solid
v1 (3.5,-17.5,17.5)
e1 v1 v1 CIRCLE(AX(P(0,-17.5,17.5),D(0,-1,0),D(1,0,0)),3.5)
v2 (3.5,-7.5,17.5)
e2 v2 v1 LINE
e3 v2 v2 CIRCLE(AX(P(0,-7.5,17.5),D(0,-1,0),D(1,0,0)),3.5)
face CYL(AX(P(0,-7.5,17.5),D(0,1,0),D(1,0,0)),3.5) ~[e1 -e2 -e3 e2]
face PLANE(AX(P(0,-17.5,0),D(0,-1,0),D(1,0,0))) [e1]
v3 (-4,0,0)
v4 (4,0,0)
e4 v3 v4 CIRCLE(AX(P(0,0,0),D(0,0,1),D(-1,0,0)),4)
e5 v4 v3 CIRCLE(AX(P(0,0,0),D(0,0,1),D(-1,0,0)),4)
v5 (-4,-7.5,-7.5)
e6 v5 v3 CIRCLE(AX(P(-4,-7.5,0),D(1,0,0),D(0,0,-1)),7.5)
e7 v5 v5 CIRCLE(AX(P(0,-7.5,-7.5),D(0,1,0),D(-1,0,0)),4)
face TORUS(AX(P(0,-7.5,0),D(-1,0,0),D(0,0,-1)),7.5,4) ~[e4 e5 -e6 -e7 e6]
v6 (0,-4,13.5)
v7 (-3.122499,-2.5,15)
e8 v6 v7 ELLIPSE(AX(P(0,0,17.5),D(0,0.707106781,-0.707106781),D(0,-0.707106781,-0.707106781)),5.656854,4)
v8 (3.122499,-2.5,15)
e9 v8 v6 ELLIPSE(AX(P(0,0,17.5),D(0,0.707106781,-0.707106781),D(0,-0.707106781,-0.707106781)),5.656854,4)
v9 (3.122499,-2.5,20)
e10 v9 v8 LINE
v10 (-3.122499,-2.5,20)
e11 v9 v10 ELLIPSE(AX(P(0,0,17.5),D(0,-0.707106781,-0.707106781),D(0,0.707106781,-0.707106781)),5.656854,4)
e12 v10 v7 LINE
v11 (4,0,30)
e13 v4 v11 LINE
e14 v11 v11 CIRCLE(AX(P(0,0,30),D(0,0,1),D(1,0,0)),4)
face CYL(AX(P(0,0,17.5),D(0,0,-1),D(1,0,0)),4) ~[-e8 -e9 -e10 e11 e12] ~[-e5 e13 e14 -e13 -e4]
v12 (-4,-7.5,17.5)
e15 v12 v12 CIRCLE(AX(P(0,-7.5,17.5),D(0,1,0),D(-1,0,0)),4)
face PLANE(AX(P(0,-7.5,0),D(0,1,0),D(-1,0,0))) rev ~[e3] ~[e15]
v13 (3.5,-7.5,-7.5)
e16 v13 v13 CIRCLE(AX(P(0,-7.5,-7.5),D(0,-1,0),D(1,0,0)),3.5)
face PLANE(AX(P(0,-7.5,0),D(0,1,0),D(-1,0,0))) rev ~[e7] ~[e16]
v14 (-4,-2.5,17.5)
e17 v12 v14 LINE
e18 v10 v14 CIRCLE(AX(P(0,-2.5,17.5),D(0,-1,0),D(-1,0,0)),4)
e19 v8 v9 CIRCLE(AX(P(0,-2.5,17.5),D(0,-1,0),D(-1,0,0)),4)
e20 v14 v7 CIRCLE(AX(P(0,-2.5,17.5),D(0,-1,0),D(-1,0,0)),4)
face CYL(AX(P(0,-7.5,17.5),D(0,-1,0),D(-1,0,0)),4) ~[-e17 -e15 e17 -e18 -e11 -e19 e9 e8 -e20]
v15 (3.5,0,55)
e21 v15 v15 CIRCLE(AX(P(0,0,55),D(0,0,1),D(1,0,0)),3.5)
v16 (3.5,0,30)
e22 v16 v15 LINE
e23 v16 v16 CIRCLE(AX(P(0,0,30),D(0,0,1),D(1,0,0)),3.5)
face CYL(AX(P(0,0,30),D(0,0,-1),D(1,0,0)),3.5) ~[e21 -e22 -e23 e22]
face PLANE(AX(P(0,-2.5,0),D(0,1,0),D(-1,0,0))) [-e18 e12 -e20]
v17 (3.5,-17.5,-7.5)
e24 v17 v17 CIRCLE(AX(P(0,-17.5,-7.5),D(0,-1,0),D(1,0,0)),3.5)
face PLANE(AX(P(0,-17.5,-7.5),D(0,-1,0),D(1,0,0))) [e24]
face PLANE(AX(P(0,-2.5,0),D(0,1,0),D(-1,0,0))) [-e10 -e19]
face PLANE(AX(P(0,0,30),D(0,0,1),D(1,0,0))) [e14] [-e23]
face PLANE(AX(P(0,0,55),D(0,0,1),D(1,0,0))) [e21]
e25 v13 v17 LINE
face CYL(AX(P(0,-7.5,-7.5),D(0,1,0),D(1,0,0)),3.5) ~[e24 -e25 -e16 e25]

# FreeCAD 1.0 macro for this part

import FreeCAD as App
import Part
import Sketcher
from FreeCAD import Vector

doc = App.newDocument("Part")
body = doc.addObject("PartDesign::Body", "Body")

# Sketch on XZ plane
sketch1 = doc.addObject("Sketcher::SketchObject", "Sketch")
body.addObject(sketch1)
sketch1.AttachmentSupport = (doc.XZ_Plane, [""])
sketch1.MapMode = "FlatFace"
sketch1.AttachmentOffset = App.Placement(Vector(0, 0, 7.5), App.Rotation())
sketch1.addGeometry(Part.Circle(Vector(0, -7.5, 0), Vector(0, 0, 1), 4), False)
sketch1.addConstraint([
    Sketcher.Constraint("PointOnObject", 0, 3, -2),
    Sketcher.Constraint("Diameter", 0, 8.0),
    Sketcher.Constraint("DistanceY", 0, 3, -1, 1, 7.5),
])
revolution = doc.addObject("PartDesign::Revolution", "Revolution")
body.addObject(revolution)
revolution.Profile = sketch1
revolution.ReferenceAxis = (sketch1, ["H_Axis"])
revolution.Angle = 90

# Sketch on XY plane
sketch2 = doc.addObject("Sketcher::SketchObject", "Sketch001")
body.addObject(sketch2)
sketch2.AttachmentSupport = (doc.XY_Plane, [""])
sketch2.MapMode = "FlatFace"
sketch2.addGeometry(Part.Circle(Vector(0, 0, 0), Vector(0, 0, 1), 4), False)
sketch2.addConstraint([
    Sketcher.Constraint("Coincident", 0, 3, -1, 1),
    Sketcher.Constraint("Diameter", 0, 8.0),
])
pad1 = doc.addObject("PartDesign::Pad", "Pad")
body.addObject(pad1)
pad1.Profile = sketch2
pad1.Length = 17.5

# Sketch on XY plane
sketch3 = doc.addObject("Sketcher::SketchObject", "Sketch002")
body.addObject(sketch3)
sketch3.AttachmentSupport = (doc.XY_Plane, [""])
sketch3.MapMode = "FlatFace"
sketch3.AttachmentOffset = App.Placement(Vector(0, 0, 17.5), App.Rotation())
sketch3.addGeometry(Part.Circle(Vector(0, 0, 0), Vector(0, 0, 1), 4), False)
sketch3.addConstraint([
    Sketcher.Constraint("Coincident", 0, 3, -1, 1),
    Sketcher.Constraint("Diameter", 0, 8.0),
])
pad2 = doc.addObject("PartDesign::Pad", "Pad001")
body.addObject(pad2)
pad2.Profile = sketch3
pad2.Length = 12.5

# Sketch on XZ plane
sketch4 = doc.addObject("Sketcher::SketchObject", "Sketch003")
body.addObject(sketch4)
sketch4.AttachmentSupport = (doc.XZ_Plane, [""])
sketch4.MapMode = "FlatFace"
sketch4.AttachmentOffset = App.Placement(Vector(0, 0, 7.5), App.Rotation())
sketch4.addGeometry(Part.Circle(Vector(0, 17.5, 0), Vector(0, 0, 1), 4), False)
sketch4.addConstraint([
    Sketcher.Constraint("PointOnObject", 0, 3, -2),
    Sketcher.Constraint("Diameter", 0, 8.0),
    Sketcher.Constraint("DistanceY", -1, 1, 0, 3, 17.5),
])
pad3 = doc.addObject("PartDesign::Pad", "Pad002")
body.addObject(pad3)
pad3.Profile = sketch4
pad3.Length = 5
pad3.Reversed = True

# Sketch on XZ plane
sketch5 = doc.addObject("Sketcher::SketchObject", "Sketch004")
body.addObject(sketch5)
sketch5.AttachmentSupport = (doc.XZ_Plane, [""])
sketch5.MapMode = "FlatFace"
sketch5.AttachmentOffset = App.Placement(Vector(0, 0, 7.5), App.Rotation())
sketch5.addGeometry(Part.Circle(Vector(0, -7.5, 0), Vector(0, 0, 1), 3.5), False)
sketch5.addConstraint([
    Sketcher.Constraint("PointOnObject", 0, 3, -2),
    Sketcher.Constraint("Diameter", 0, 7.0),
    Sketcher.Constraint("DistanceY", 0, 3, -1, 1, 7.5),
])
pad4 = doc.addObject("PartDesign::Pad", "Pad003")
body.addObject(pad4)
pad4.Profile = sketch5
pad4.Length = 10

# Sketch on XZ plane
sketch6 = doc.addObject("Sketcher::SketchObject", "Sketch005")
body.addObject(sketch6)
sketch6.AttachmentSupport = (doc.XZ_Plane, [""])
sketch6.MapMode = "FlatFace"
sketch6.AttachmentOffset = App.Placement(Vector(0, 0, 7.5), App.Rotation())
sketch6.addGeometry(Part.Circle(Vector(0, 17.5, 0), Vector(0, 0, 1), 3.5), False)
sketch6.addConstraint([
    Sketcher.Constraint("PointOnObject", 0, 3, -2),
    Sketcher.Constraint("Diameter", 0, 7.0),
    Sketcher.Constraint("DistanceY", -1, 1, 0, 3, 17.5),
])
pad5 = doc.addObject("PartDesign::Pad", "Pad004")
body.addObject(pad5)
pad5.Profile = sketch6
pad5.Length = 10

# Sketch on XY plane
sketch7 = doc.addObject("Sketcher::SketchObject", "Sketch006")
body.addObject(sketch7)
sketch7.AttachmentSupport = (doc.XY_Plane, [""])
sketch7.MapMode = "FlatFace"
sketch7.AttachmentOffset = App.Placement(Vector(0, 0, 30), App.Rotation())
sketch7.addGeometry(Part.Circle(Vector(0, 0, 0), Vector(0, 0, 1), 3.5), False)
sketch7.addConstraint([
    Sketcher.Constraint("Coincident", 0, 3, -1, 1),
    Sketcher.Constraint("Diameter", 0, 7.0),
])
pad6 = doc.addObject("PartDesign::Pad", "Pad005")
body.addObject(pad6)
pad6.Profile = sketch7
pad6.Length = 50
pad6.Midplane = True

doc.recompute()
